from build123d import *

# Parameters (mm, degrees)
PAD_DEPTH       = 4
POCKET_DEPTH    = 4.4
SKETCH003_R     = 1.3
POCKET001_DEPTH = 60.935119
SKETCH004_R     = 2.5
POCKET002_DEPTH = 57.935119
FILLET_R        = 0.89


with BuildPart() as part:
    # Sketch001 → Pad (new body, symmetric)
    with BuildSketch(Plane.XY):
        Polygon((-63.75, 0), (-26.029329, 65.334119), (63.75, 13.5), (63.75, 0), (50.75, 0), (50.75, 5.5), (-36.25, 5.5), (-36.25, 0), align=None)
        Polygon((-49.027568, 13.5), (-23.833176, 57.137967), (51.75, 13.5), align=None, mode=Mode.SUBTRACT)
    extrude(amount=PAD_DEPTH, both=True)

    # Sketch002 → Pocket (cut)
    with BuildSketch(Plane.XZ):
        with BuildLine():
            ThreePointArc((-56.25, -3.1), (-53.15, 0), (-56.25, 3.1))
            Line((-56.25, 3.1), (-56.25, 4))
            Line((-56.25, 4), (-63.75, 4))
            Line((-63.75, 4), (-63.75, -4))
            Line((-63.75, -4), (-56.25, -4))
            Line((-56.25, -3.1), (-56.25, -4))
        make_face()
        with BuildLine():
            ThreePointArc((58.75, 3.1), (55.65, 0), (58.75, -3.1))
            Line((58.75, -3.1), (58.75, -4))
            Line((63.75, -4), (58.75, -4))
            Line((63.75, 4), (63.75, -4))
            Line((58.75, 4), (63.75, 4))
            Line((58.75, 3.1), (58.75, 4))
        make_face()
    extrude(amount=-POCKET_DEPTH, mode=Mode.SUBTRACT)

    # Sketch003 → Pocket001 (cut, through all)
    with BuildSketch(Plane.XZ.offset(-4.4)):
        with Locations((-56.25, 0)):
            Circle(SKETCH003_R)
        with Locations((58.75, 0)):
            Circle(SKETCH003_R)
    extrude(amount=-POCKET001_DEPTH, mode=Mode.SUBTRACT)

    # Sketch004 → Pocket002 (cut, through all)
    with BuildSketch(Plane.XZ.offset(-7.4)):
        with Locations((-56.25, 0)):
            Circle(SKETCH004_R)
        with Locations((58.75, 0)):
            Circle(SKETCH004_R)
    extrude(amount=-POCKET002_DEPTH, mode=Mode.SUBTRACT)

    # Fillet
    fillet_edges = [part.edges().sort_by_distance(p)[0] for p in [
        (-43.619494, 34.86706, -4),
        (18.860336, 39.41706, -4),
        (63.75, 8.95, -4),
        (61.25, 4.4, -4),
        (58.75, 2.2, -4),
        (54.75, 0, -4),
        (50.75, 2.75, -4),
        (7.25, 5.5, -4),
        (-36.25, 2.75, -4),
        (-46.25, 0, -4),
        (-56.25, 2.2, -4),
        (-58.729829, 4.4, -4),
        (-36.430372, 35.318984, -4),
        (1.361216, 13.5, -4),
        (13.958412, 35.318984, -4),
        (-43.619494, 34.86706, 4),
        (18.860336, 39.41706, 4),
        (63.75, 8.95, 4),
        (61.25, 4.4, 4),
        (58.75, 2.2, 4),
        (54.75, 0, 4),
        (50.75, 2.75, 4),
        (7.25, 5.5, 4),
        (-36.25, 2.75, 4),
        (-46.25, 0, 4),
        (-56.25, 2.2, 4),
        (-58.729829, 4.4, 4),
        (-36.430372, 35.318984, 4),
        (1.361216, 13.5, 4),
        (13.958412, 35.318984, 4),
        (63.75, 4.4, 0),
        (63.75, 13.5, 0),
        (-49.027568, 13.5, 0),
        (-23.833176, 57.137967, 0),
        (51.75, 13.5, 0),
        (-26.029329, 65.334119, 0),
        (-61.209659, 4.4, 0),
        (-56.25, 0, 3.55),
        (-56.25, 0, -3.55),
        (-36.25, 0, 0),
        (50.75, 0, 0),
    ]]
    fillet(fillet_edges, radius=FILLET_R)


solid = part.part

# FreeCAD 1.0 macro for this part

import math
import FreeCAD as App
import Part
import Sketcher
Q = App.Units.Quantity


def edges_at(feature, points):
    """Names of the edges that pass closest to the given points."""
    edges = feature.Shape.Edges
    near = lambda p: min(range(len(edges)), key=lambda i: edges[i].distToShape(Part.Vertex(*p))[0])
    return sorted({f"Edge{near(p) + 1}" for p in points})


def add_polygon(sketch, points):
    """Adds a closed chain of lines whose ends are joined by coincident constraints."""
    first, n = sketch.GeometryCount, len(points)
    for a, b in zip(points, points[1:] + points[:1]):
        sketch.addGeometry(Part.LineSegment(App.Vector(*a, 0), App.Vector(*b, 0)), False)
    for i in range(n):
        sketch.addConstraint(Sketcher.Constraint("Coincident", first + i, 2, first + (i + 1) % n, 1))

doc = App.newDocument("Part")
body = doc.addObject("PartDesign::Body", "Body")

sketch1 = doc.addObject("Sketcher::SketchObject", "Sketch")
body.addObject(sketch1)
sketch1.AttachmentSupport = (doc.XY_Plane, [""])
sketch1.MapMode = "FlatFace"
add_polygon(sketch1, [(-26.029329, 65.334119), (-63.75, 0), (-36.25, 0), (-36.25, 5.5), (50.75, 5.5), (50.75, 0), (63.75, 0), (63.75, 13.5)])
add_polygon(sketch1, [(-49.027568, 13.5), (-23.833176, 57.137967), (51.75, 13.5)])
sketch1.addConstraint([
    Sketcher.Constraint("Horizontal", 1),
    Sketcher.Constraint("Vertical", 2),
    Sketcher.Constraint("Horizontal", 3),
    Sketcher.Constraint("Vertical", 4),
    Sketcher.Constraint("Horizontal", 5),
    Sketcher.Constraint("Vertical", 6),
    Sketcher.Constraint("Horizontal", 10),
    Sketcher.Constraint("Symmetric", 0, 2, 5, 2, -1, 1),
    Sketcher.Constraint("PointOnObject", 0, 2, -1),
    Sketcher.Constraint("Perpendicular", 0, 7),
    Sketcher.Constraint("Perpendicular", 7, 8),
    Sketcher.Constraint("Perpendicular", 8, 9),
    Sketcher.Constraint("Horizontal", 6, 2, 9, 2),
    Sketcher.Constraint("DistanceX", 3, 1, 3, 2, 87.0),
    Sketcher.Constraint("DistanceX", 5, 1, 5, 2, 13.0),
    Sketcher.Constraint("Angle", 0, Q("-120 deg")),
    Sketcher.Constraint("DistanceX", 1, 1, 1, 2, 27.5),
    Sketcher.Constraint("DistanceY", 2, 1, 2, 2, 5.5),
    Sketcher.Constraint("DistanceY", 6, 1, 6, 2, 13.5),
    Sketcher.Constraint("DistanceX", 3, 2, 9, 2, 1.0),
    Sketcher.Constraint("DistanceX", 10, 2, 10, 1, 100.777568),
])
pad1 = doc.addObject("PartDesign::Pad", "Pad")
body.addObject(pad1)
pad1.Profile = sketch1
pad1.Length = 8
pad1.Midplane = True

sketch2 = doc.addObject("Sketcher::SketchObject", "Sketch001")
body.addObject(sketch2)
sketch2.AttachmentSupport = (doc.XZ_Plane, [""])
sketch2.MapMode = "FlatFace"
sketch2.addGeometry([
    Part.ArcOfCircle(Part.Circle(App.Vector(-56.25, 0, 0), App.Vector(0, 0, 1), 3.1), math.radians(-90), math.radians(90)),
    Part.LineSegment(App.Vector(-56.25, 3.1, 0), App.Vector(-56.25, 4, 0)),
    Part.LineSegment(App.Vector(-56.25, 4, 0), App.Vector(-63.75, 4, 0)),
    Part.LineSegment(App.Vector(-63.75, 4, 0), App.Vector(-63.75, -4, 0)),
    Part.LineSegment(App.Vector(-63.75, -4, 0), App.Vector(-56.25, -4, 0)),
    Part.LineSegment(App.Vector(-56.25, -4, 0), App.Vector(-56.25, -3.1, 0)),
    Part.ArcOfCircle(Part.Circle(App.Vector(58.75, 0, 0), App.Vector(0, 0, 1), 3.1), math.radians(90), math.radians(270)),
    Part.LineSegment(App.Vector(58.75, -3.1, 0), App.Vector(58.75, -4, 0)),
    Part.LineSegment(App.Vector(58.75, -4, 0), App.Vector(63.75, -4, 0)),
    Part.LineSegment(App.Vector(63.75, -4, 0), App.Vector(63.75, 4, 0)),
    Part.LineSegment(App.Vector(63.75, 4, 0), App.Vector(58.75, 4, 0)),
    Part.LineSegment(App.Vector(58.75, 4, 0), App.Vector(58.75, 3.1, 0)),
], False)
sketch2.addConstraint([
    Sketcher.Constraint("Coincident", 0, 2, 1, 1),
    Sketcher.Constraint("Coincident", 1, 2, 2, 1),
    Sketcher.Constraint("Coincident", 2, 2, 3, 1),
    Sketcher.Constraint("Coincident", 3, 2, 4, 1),
    Sketcher.Constraint("Coincident", 4, 2, 5, 1),
    Sketcher.Constraint("Coincident", 5, 2, 0, 1),
    Sketcher.Constraint("Coincident", 6, 2, 7, 1),
    Sketcher.Constraint("Coincident", 7, 2, 8, 1),
    Sketcher.Constraint("Coincident", 8, 2, 9, 1),
    Sketcher.Constraint("Coincident", 9, 2, 10, 1),
    Sketcher.Constraint("Coincident", 10, 2, 11, 1),
    Sketcher.Constraint("Coincident", 11, 2, 6, 1),
    Sketcher.Constraint("Vertical", 1),
    Sketcher.Constraint("Horizontal", 2),
    Sketcher.Constraint("Vertical", 3),
    Sketcher.Constraint("Horizontal", 4),
    Sketcher.Constraint("Vertical", 5),
    Sketcher.Constraint("Vertical", 7),
    Sketcher.Constraint("Horizontal", 8),
    Sketcher.Constraint("Vertical", 9),
    Sketcher.Constraint("Horizontal", 10),
    Sketcher.Constraint("Vertical", 11),
    Sketcher.Constraint("Equal", 0, 6),
    Sketcher.Constraint("Symmetric", 2, 2, 8, 2, -1, 1),
    Sketcher.Constraint("Symmetric", 1, 2, 4, 2, -1),
    Sketcher.Constraint("Symmetric", 7, 2, 10, 2, -1),
    Sketcher.Constraint("PointOnObject", 0, 3, -1),
    Sketcher.Constraint("PointOnObject", 6, 3, -1),
    Sketcher.Constraint("Radius", 0, 3.1),
    Sketcher.Constraint("DistanceX", 8, 1, 8, 2, 5.0),
    Sketcher.Constraint("DistanceY", 3, 2, 3, 1, 8.0),
    Sketcher.Constraint("DistanceX", 2, 2, 2, 1, 7.5),
    Sketcher.Constraint("DistanceX", 0, 3, 6, 3, 115.0),
    Sketcher.Constraint("DistanceX", 0, 2, 6, 3, 115.0),
    Sketcher.Constraint("DistanceX", 5, 2, 6, 2, 115.0),
])
pocket1 = doc.addObject("PartDesign::Pocket", "Pocket")
body.addObject(pocket1)
pocket1.Profile = sketch2
pocket1.Length = 4.4

sketch3 = doc.addObject("Sketcher::SketchObject", "Sketch002")
body.addObject(sketch3)
sketch3.AttachmentSupport = (doc.XZ_Plane, [""])
sketch3.MapMode = "FlatFace"
sketch3.AttachmentOffset = App.Placement(App.Vector(0, 0, -4.4), App.Rotation())
sketch3.addGeometry([
    Part.Circle(App.Vector(-56.25, 0, 0), App.Vector(0, 0, 1), 1.3),
    Part.Circle(App.Vector(58.75, 0, 0), App.Vector(0, 0, 1), 1.3),
], False)
sketch3.addConstraint([
    Sketcher.Constraint("Equal", 0, 1),
    Sketcher.Constraint("PointOnObject", 0, 3, -1),
    Sketcher.Constraint("PointOnObject", 1, 3, -1),
    Sketcher.Constraint("Diameter", 0, 2.6),
    Sketcher.Constraint("DistanceX", 0, 3, 1, 3, 115.0),
    Sketcher.Constraint("DistanceX", 0, 3, -1, 1, 56.25),
])
pocket2 = doc.addObject("PartDesign::Pocket", "Pocket001")
body.addObject(pocket2)
pocket2.Profile = sketch3
pocket2.Type = "ThroughAll"

sketch4 = doc.addObject("Sketcher::SketchObject", "Sketch003")
body.addObject(sketch4)
sketch4.AttachmentSupport = (doc.XZ_Plane, [""])
sketch4.MapMode = "FlatFace"
sketch4.AttachmentOffset = App.Placement(App.Vector(0, 0, -7.4), App.Rotation())
sketch4.addGeometry([
    Part.Circle(App.Vector(-56.25, 0, 0), App.Vector(0, 0, 1), 2.5),
    Part.Circle(App.Vector(58.75, 0, 0), App.Vector(0, 0, 1), 2.5),
], False)
sketch4.addConstraint([
    Sketcher.Constraint("Equal", 0, 1),
    Sketcher.Constraint("PointOnObject", 0, 3, -1),
    Sketcher.Constraint("PointOnObject", 1, 3, -1),
    Sketcher.Constraint("Diameter", 0, 5.0),
    Sketcher.Constraint("DistanceX", 0, 3, 1, 3, 115.0),
    Sketcher.Constraint("DistanceX", 0, 3, -1, 1, 56.25),
])
pocket3 = doc.addObject("PartDesign::Pocket", "Pocket002")
body.addObject(pocket3)
pocket3.Profile = sketch4
pocket3.Type = "ThroughAll"
doc.recompute()

fillet = doc.addObject("PartDesign::Fillet", "Fillet")
body.addObject(fillet)
fillet.Base = (pocket3, edges_at(pocket3, [
    (-43.619, 34.867, -4),
    (18.86, 39.417, -4),
    (63.75, 8.95, -4),
    (61.25, 4.4, -4),
    (58.75, 2.2, -4),
    (54.75, 0, -4),
    (50.75, 2.75, -4),
    (7.25, 5.5, -4),
    (-36.25, 2.75, -4),
    (-46.25, 0, -4),
    (-56.25, 2.2, -4),
    (-58.73, 4.4, -4),
    (-36.43, 35.319, -4),
    (1.361, 13.5, -4),
    (13.958, 35.319, -4),
    (-43.619, 34.867, 4),
    (18.86, 39.417, 4),
    (63.75, 8.95, 4),
    (61.25, 4.4, 4),
    (58.75, 2.2, 4),
    (54.75, 0, 4),
    (50.75, 2.75, 4),
    (7.25, 5.5, 4),
    (-36.25, 2.75, 4),
    (-46.25, 0, 4),
    (-56.25, 2.2, 4),
    (-58.73, 4.4, 4),
    (-36.43, 35.319, 4),
    (1.361, 13.5, 4),
    (13.958, 35.319, 4),
    (63.75, 4.4, 0),
    (63.75, 13.5, 0),
    (-49.028, 13.5, 0),
    (-23.833, 57.138, 0),
    (51.75, 13.5, 0),
    (-26.029, 65.334, 0),
    (-61.21, 4.4, 0),
    (-56.25, 0, 3.55),
    (-56.25, 0, -3.55),
    (-36.25, 0, 0),
    (50.75, 0, 0),
]))
fillet.Radius = 0.89

doc.recompute()
